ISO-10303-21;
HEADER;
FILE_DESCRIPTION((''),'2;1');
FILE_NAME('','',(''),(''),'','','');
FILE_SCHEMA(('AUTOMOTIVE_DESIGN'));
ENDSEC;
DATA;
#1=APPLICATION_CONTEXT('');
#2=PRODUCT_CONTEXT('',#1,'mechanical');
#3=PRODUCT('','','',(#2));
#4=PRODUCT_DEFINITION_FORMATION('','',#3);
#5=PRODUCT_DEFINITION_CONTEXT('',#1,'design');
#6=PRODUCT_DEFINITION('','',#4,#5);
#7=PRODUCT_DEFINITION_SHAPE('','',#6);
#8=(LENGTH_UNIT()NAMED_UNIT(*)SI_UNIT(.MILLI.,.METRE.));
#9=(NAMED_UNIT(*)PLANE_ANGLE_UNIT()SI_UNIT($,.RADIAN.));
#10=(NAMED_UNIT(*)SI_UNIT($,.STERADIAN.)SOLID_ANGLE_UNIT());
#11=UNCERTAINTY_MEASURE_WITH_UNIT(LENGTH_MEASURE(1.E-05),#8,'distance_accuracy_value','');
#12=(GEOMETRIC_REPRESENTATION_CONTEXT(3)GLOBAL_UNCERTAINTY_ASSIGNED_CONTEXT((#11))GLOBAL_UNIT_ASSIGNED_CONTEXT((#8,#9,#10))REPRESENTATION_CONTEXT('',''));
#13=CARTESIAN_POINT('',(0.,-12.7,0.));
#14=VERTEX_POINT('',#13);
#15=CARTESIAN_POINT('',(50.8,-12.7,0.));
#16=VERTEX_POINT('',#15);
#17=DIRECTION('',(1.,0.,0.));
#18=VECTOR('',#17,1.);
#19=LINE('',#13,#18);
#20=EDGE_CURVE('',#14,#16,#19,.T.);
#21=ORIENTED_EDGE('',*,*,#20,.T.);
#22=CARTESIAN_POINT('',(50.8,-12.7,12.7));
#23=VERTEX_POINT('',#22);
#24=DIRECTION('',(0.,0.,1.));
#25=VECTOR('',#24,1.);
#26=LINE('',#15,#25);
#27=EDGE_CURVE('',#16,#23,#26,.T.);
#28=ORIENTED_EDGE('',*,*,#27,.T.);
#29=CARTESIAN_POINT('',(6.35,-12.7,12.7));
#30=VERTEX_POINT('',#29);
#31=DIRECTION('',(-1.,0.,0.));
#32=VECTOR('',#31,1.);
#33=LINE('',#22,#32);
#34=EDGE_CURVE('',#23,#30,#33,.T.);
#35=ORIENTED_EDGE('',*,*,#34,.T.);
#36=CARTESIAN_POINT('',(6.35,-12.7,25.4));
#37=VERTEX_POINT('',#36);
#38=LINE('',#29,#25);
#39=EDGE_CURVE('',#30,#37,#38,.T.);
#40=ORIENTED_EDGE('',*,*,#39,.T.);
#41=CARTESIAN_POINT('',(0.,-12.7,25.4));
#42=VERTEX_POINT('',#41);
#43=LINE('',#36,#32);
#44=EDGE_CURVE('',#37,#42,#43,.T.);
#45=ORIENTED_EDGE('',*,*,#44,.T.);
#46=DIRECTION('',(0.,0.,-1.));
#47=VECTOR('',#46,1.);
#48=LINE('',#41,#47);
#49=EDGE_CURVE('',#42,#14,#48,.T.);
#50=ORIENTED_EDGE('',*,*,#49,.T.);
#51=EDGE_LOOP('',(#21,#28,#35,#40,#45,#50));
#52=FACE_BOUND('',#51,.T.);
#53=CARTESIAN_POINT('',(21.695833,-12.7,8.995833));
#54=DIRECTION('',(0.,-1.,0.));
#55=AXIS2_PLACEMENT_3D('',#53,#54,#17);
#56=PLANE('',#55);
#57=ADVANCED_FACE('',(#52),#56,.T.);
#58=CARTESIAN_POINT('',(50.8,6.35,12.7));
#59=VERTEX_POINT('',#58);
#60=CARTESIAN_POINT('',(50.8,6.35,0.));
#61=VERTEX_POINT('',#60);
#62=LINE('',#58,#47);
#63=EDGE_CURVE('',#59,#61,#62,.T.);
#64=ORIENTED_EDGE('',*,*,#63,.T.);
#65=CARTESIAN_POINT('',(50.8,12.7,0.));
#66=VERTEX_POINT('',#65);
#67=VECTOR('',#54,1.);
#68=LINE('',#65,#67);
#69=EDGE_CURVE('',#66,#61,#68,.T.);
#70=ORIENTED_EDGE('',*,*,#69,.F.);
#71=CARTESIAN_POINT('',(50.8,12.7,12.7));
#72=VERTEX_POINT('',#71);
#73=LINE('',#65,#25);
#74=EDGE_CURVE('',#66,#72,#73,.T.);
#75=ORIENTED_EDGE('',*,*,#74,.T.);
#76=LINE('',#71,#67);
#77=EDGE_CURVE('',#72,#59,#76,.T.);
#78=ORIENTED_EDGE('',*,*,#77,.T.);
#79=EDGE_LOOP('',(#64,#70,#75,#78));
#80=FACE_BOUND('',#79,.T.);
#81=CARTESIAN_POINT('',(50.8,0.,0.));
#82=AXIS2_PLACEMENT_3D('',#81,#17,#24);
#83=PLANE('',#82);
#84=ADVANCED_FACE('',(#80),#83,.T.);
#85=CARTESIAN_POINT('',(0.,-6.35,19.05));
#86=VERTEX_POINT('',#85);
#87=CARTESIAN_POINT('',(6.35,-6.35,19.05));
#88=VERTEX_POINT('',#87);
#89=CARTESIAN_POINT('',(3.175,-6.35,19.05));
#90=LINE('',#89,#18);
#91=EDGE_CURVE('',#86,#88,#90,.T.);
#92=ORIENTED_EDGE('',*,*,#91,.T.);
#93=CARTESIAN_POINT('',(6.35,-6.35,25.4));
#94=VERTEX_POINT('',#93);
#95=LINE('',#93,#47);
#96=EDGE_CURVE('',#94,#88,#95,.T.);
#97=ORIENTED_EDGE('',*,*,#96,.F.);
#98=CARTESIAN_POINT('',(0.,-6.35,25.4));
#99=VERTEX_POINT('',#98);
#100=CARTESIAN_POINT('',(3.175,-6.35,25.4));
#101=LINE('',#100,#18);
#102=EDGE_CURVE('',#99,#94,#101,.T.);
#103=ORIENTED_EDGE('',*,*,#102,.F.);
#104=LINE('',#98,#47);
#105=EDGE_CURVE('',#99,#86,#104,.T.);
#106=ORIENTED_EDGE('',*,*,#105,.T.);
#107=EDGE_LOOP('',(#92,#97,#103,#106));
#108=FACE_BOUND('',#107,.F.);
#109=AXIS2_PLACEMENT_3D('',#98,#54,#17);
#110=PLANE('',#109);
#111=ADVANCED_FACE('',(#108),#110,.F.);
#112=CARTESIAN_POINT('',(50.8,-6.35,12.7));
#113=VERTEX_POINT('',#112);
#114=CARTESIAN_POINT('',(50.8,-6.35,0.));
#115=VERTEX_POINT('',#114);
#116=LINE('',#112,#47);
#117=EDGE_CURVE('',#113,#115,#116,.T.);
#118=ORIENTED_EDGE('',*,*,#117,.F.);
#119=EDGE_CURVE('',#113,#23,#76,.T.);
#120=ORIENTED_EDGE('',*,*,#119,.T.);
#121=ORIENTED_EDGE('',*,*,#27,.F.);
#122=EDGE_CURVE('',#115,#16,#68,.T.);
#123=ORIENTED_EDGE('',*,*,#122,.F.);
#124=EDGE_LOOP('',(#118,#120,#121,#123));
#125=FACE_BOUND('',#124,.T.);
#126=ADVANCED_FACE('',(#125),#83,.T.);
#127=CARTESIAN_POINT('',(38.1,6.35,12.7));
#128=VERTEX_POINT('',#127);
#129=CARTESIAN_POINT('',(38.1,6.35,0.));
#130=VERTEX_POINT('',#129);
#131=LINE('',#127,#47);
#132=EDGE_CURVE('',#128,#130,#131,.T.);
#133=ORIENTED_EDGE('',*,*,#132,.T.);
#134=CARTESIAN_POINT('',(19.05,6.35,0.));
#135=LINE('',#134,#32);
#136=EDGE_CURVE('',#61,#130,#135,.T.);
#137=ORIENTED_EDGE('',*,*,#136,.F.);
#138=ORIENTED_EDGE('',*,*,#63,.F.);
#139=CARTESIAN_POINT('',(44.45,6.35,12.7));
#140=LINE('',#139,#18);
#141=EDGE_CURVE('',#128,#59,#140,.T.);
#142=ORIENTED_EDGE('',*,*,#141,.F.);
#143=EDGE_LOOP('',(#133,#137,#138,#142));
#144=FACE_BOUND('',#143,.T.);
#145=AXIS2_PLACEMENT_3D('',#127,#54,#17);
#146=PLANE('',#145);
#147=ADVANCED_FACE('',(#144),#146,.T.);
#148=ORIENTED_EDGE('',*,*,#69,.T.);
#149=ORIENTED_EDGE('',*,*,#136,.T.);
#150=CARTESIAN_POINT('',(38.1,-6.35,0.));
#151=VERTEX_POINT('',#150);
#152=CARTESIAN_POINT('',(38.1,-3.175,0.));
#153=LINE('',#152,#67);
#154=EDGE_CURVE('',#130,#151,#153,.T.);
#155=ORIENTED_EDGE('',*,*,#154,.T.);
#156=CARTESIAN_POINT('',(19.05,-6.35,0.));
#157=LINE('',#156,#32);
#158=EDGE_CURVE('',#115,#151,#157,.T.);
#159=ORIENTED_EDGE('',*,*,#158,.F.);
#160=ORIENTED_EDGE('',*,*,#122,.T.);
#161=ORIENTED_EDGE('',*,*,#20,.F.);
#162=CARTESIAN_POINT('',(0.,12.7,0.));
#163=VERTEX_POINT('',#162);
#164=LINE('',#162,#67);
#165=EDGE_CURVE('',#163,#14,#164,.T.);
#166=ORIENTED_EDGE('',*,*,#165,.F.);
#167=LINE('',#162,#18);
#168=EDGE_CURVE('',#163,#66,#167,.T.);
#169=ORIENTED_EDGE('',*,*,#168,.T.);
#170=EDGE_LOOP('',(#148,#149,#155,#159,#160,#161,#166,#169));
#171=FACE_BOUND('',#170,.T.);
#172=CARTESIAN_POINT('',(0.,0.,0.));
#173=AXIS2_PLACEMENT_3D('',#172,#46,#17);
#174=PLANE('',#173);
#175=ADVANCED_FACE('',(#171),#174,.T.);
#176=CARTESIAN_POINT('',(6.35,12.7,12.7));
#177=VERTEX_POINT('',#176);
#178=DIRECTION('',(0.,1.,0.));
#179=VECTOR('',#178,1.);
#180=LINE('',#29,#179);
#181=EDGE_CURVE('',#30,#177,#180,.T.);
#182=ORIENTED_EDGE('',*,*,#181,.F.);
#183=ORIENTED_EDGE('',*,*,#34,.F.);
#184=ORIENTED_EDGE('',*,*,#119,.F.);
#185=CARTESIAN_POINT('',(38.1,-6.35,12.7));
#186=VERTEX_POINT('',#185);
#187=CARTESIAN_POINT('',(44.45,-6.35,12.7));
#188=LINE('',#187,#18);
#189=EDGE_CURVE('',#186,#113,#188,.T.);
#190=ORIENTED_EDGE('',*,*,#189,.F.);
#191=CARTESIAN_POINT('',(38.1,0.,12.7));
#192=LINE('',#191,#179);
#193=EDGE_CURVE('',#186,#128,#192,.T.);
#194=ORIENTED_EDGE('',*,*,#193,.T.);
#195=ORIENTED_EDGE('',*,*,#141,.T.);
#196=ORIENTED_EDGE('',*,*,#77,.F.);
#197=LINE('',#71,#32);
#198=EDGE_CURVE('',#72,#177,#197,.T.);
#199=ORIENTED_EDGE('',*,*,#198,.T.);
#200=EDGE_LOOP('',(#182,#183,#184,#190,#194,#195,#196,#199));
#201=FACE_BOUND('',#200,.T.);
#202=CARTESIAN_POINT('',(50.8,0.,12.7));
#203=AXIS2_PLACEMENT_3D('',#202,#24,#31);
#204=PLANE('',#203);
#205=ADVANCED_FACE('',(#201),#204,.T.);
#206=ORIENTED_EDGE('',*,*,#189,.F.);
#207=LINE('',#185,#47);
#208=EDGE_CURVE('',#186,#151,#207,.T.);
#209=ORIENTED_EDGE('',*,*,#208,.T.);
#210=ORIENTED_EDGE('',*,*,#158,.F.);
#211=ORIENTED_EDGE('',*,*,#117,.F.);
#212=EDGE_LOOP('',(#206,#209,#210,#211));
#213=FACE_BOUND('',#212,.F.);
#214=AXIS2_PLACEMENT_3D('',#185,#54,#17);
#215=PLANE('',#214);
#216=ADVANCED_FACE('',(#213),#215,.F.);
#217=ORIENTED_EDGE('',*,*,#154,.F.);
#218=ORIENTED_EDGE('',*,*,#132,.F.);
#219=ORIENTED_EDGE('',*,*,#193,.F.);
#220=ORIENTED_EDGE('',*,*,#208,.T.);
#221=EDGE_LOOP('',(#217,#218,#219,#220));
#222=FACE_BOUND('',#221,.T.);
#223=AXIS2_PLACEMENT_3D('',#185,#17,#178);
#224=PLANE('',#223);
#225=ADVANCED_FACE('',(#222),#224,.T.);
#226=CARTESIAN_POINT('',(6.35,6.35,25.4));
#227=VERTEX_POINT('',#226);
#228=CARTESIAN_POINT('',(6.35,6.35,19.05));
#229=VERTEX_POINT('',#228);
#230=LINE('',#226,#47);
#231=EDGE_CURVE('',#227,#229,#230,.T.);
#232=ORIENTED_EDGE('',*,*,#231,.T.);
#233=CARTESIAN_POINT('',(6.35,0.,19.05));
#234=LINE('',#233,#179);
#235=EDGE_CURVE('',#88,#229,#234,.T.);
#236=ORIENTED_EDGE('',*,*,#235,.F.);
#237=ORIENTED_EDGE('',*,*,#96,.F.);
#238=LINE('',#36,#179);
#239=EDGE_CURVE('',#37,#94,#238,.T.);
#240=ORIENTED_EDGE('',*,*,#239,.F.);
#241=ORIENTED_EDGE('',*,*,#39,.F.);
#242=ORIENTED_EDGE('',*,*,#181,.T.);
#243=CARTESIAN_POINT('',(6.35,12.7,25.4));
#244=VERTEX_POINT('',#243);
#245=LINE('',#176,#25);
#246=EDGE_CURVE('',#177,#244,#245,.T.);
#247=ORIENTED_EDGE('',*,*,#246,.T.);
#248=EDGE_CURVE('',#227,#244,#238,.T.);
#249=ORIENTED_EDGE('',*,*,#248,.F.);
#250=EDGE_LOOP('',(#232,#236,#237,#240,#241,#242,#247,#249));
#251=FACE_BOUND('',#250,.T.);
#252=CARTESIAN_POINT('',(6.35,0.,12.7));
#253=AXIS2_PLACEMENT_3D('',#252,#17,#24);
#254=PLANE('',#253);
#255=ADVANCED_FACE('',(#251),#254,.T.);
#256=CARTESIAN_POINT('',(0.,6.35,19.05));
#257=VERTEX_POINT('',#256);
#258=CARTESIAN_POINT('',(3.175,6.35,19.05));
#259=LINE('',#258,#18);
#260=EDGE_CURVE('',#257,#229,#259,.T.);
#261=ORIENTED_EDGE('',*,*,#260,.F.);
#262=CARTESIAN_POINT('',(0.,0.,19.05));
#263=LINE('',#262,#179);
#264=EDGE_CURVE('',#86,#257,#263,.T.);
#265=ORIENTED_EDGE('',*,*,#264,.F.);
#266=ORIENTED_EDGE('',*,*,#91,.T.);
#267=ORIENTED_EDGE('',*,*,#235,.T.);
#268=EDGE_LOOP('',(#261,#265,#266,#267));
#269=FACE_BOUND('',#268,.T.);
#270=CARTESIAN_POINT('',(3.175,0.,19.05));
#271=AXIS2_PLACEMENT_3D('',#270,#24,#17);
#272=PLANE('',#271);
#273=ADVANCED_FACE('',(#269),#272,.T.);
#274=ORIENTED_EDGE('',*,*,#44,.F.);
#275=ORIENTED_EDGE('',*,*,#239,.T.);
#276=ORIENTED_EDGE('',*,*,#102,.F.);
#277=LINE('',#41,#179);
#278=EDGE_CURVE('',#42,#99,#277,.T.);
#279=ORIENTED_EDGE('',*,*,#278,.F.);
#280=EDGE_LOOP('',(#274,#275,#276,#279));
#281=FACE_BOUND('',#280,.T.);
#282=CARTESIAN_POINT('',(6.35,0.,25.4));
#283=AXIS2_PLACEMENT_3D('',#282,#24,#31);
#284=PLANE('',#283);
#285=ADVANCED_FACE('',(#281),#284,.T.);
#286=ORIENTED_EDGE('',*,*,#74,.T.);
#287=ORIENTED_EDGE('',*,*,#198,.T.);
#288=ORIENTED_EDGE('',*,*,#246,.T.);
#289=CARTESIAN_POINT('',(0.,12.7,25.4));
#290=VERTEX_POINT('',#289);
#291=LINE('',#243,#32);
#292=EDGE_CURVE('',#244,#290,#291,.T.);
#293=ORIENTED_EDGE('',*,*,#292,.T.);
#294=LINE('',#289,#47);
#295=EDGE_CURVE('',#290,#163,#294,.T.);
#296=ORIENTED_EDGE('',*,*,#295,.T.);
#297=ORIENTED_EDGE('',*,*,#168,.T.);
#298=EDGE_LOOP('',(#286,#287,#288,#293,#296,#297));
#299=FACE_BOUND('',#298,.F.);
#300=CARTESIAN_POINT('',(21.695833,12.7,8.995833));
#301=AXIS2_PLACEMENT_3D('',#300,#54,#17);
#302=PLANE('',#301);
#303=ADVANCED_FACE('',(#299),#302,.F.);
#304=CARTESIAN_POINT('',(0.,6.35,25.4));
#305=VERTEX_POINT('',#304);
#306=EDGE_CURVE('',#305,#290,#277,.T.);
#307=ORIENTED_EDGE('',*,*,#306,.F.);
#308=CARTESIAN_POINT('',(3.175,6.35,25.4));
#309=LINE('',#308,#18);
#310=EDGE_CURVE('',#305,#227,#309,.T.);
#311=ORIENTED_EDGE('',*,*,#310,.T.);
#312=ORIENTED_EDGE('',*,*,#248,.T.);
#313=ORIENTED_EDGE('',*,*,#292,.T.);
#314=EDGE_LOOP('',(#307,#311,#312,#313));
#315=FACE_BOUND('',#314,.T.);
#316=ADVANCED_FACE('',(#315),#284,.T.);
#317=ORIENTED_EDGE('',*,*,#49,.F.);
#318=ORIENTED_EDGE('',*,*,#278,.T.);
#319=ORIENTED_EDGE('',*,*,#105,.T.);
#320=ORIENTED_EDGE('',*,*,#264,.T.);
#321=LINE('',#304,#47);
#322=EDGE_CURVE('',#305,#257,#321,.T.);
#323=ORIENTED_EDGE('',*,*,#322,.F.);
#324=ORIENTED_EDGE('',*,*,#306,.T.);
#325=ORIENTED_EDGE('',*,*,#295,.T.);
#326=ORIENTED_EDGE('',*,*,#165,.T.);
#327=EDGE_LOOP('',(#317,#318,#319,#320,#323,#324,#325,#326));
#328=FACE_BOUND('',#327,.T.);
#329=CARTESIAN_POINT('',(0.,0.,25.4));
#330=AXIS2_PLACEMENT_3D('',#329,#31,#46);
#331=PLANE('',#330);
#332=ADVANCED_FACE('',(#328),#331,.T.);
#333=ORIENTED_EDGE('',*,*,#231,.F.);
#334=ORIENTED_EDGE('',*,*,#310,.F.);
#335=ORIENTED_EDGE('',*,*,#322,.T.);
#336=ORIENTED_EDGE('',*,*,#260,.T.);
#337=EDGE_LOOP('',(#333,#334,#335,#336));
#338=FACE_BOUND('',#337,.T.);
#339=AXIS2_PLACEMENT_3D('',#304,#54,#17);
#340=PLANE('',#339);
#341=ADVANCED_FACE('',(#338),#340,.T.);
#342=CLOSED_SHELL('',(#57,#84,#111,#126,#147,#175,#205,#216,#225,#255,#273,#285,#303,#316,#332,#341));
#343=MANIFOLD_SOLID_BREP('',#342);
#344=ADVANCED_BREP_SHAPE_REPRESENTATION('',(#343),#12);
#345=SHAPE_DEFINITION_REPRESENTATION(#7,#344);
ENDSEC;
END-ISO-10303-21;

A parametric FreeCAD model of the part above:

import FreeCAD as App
import Part
import Sketcher
Q = App.Units.Quantity


def add_polygon(sketch, points):
    """Adds a closed chain of lines whose ends are joined by coincident constraints."""
    first, n = sketch.GeometryCount, len(points)
    for a, b in zip(points, points[1:] + points[:1]):
        sketch.addGeometry(Part.LineSegment(App.Vector(*a, 0), App.Vector(*b, 0)), False)
    for i in range(n):
        sketch.addConstraint(Sketcher.Constraint("Coincident", first + i, 2, first + (i + 1) % n, 1))

doc = App.newDocument("Part")
body = doc.addObject("PartDesign::Body", "Body")

sketch1 = body.newObject("Sketcher::SketchObject", "Sketch")
sketch1.AttachmentSupport = (doc.getObject("XZ_Plane"), [""])
sketch1.MapMode = "FlatFace"
add_polygon(sketch1, [(0, 25), (0, 0), (51, 0), (51, 13), (6, 13), (6, 25)])
sketch1.addConstraint(Sketcher.Constraint("Vertical", 0))
sketch1.addConstraint(Sketcher.Constraint("Horizontal", 1))
sketch1.addConstraint(Sketcher.Constraint("Vertical", 2))
sketch1.addConstraint(Sketcher.Constraint("Horizontal", 3))
sketch1.addConstraint(Sketcher.Constraint("Vertical", 4))
sketch1.addConstraint(Sketcher.Constraint("Horizontal", 5))
sketch1.addConstraint(Sketcher.Constraint("Coincident", 0, 2, -1, 1))
sketch1.addConstraint(Sketcher.Constraint("Equal", 2, 4))
sketch1.addConstraint(Sketcher.Constraint("DistanceX", 1, 1, 1, 2, Q("2 in")))
sketch1.addConstraint(Sketcher.Constraint("DistanceY", 0, 2, 0, 1, Q("1 in")))
sketch1.addConstraint(Sketcher.Constraint("DistanceX", 3, 2, 3, 1, Q("1.75 in")))
pad1 = body.newObject("PartDesign::Pad", "Pad")
pad1.Profile = sketch1
pad1.Length = Q("1 in")
pad1.Midplane = True

sketch2 = body.newObject("Sketcher::SketchObject", "Sketch001")
sketch2.AttachmentSupport = (doc.getObject("XY_Plane"), [""])
sketch2.MapMode = "FlatFace"
sketch2.AttachmentOffset = App.Placement(App.Vector(0, 0, 1 * 25.4), App.Rotation())
add_polygon(sketch2, [(0, 6), (0, -6), (6, -6), (6, 6)])
sketch2.addConstraint(Sketcher.Constraint("Vertical", 0))
sketch2.addConstraint(Sketcher.Constraint("Horizontal", 1))
sketch2.addConstraint(Sketcher.Constraint("Vertical", 2))
sketch2.addConstraint(Sketcher.Constraint("Horizontal", 3))
sketch2.addConstraint(Sketcher.Constraint("Symmetric", 0, 2, 3, 2, -1, 1))
sketch2.addConstraint(Sketcher.Constraint("DistanceY", 0, 2, 0, 1, Q("0.5 in")))
sketch2.addConstraint(Sketcher.Constraint("DistanceX", 1, 1, 1, 2, Q("0.25 in")))
pocket1 = body.newObject("PartDesign::Pocket", "Pocket")
pocket1.Profile = sketch2
pocket1.Length = Q("0.25 in")

sketch3 = body.newObject("Sketcher::SketchObject", "Sketch002")
sketch3.AttachmentSupport = (doc.getObject("XY_Plane"), [""])
sketch3.MapMode = "FlatFace"
sketch3.AttachmentOffset = App.Placement(App.Vector(0, 0, 0.5 * 25.4), App.Rotation())
add_polygon(sketch3, [(38, 6), (38, -6), (51, -6), (51, 6)])
sketch3.addConstraint(Sketcher.Constraint("Vertical", 0))
sketch3.addConstraint(Sketcher.Constraint("Horizontal", 1))
sketch3.addConstraint(Sketcher.Constraint("Vertical", 2))
sketch3.addConstraint(Sketcher.Constraint("Horizontal", 3))
sketch3.addConstraint(Sketcher.Constraint("Equal", 3, 0))
sketch3.addConstraint(Sketcher.Constraint("DistanceX", 1, 1, 1, 2, Q("0.5 in")))
sketch3.addConstraint(Sketcher.Constraint("DistanceX", -1, 1, 1, 2, Q("2 in")))
sketch3.addConstraint(Sketcher.Constraint("DistanceY", 0, 2, -1, 1, Q("0.25 in")))
pocket2 = body.newObject("PartDesign::Pocket", "Pocket001")
pocket2.Profile = sketch3
pocket2.Type = "ThroughAll"

doc.recompute()
